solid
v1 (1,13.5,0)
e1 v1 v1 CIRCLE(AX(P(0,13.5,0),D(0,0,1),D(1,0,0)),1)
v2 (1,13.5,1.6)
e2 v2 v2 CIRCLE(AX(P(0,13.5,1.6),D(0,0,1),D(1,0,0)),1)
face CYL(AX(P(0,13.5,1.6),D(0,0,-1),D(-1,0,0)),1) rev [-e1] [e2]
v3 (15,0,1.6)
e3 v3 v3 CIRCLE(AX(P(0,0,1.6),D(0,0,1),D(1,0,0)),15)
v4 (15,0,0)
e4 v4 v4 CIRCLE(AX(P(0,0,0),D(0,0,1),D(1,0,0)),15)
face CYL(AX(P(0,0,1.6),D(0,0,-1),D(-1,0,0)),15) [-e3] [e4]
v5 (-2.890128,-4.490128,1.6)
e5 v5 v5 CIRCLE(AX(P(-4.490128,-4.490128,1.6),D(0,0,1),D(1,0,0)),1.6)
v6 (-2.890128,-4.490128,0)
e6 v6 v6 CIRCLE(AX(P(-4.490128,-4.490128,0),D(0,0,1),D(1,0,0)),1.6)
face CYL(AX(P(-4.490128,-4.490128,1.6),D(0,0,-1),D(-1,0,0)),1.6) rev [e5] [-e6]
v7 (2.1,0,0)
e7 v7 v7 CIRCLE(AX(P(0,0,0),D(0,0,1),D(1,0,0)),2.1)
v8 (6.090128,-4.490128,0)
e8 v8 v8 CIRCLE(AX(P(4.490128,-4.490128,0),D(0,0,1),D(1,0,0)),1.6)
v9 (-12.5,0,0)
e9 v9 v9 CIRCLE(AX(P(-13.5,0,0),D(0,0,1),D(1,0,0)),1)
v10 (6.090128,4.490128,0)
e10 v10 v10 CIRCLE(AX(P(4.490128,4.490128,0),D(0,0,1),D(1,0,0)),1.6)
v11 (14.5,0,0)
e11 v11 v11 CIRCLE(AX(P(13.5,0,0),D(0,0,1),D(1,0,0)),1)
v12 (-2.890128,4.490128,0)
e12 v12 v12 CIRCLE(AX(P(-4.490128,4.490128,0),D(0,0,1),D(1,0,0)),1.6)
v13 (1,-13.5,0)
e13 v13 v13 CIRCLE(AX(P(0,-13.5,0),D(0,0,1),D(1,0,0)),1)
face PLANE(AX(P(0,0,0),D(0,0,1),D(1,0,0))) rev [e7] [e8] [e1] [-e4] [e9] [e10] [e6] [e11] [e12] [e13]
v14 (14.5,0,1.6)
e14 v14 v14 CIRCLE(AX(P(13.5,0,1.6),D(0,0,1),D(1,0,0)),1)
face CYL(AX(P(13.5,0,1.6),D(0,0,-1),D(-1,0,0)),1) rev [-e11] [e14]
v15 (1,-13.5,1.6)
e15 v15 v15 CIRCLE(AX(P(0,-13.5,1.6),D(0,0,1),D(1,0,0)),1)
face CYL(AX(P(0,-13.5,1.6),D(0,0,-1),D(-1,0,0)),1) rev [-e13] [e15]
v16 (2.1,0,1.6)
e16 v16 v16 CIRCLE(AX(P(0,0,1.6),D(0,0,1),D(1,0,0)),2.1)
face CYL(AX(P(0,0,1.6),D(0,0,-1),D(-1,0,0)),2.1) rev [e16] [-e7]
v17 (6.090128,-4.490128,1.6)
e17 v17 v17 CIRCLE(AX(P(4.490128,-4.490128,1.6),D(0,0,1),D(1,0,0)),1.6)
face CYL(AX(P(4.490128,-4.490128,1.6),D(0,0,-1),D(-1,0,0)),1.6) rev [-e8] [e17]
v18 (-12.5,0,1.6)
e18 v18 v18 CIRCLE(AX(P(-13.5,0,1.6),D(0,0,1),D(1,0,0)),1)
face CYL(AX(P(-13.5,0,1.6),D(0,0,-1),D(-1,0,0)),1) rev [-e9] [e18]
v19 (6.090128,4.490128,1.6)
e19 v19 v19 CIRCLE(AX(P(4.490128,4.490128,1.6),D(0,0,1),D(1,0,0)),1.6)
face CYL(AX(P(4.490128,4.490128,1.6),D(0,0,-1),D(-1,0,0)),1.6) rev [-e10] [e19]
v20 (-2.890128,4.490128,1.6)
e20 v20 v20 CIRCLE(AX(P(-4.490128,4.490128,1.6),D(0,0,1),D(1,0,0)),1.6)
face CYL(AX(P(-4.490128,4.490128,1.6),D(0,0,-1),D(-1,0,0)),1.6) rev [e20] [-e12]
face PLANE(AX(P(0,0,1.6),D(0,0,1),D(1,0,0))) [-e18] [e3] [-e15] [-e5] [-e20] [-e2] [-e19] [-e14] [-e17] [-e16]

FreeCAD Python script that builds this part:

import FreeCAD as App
import Part
import Sketcher
Q = App.Units.Quantity

doc = App.newDocument("Part")
body = doc.addObject("PartDesign::Body", "Body")

# Sketch on XY plane
sketch1 = doc.addObject("Sketcher::SketchObject", "Sketch")
body.addObject(sketch1)
sketch1.AttachmentSupport = (doc.XY_Plane, [""])
sketch1.MapMode = "FlatFace"
sketch1.addGeometry([
    Part.Circle(App.Vector(0, 0, 0), App.Vector(0, 0, 1), 15),  # 0
    Part.Circle(App.Vector(-4.5, -4.5, 0), App.Vector(0, 0, 1), 1.6),  # 1
    Part.Circle(App.Vector(0, -13.5, 0), App.Vector(0, 0, 1), 1),  # 2
    Part.Circle(App.Vector(4.5, -4.5, 0), App.Vector(0, 0, 1), 1.6),  # 3
    Part.Circle(App.Vector(-13.5, 0, 0), App.Vector(0, 0, 1), 1),  # 4
    Part.Circle(App.Vector(-4.5, 4.5, 0), App.Vector(0, 0, 1), 1.6),  # 5
    Part.Circle(App.Vector(0, 0, 0), App.Vector(0, 0, 1), 2.1),  # 6
    Part.Circle(App.Vector(4.5, 4.5, 0), App.Vector(0, 0, 1), 1.6),  # 7
    Part.Circle(App.Vector(13.5, 0, 0), App.Vector(0, 0, 1), 1),  # 8
    Part.Circle(App.Vector(0, 13.5, 0), App.Vector(0, 0, 1), 1),  # 9
], False)
sketch1.addConstraint([
    Sketcher.Constraint("Coincident", 0, 3, -1, 1),
    Sketcher.Constraint("Coincident", 6, 3, -1, 1),
    Sketcher.Constraint("Equal", 1, 3),
    Sketcher.Constraint("Equal", 2, 4),
    Sketcher.Constraint("Equal", 3, 5),
    Sketcher.Constraint("Equal", 5, 7),
    Sketcher.Constraint("Equal", 4, 8),
    Sketcher.Constraint("Equal", 8, 9),
    Sketcher.Constraint("Symmetric", 3, 3, 5, 3, -1, 1),
    Sketcher.Constraint("Symmetric", 1, 3, 7, 3, -1, 1),
    Sketcher.Constraint("Symmetric", 4, 3, 8, 3, -1, 1),
    Sketcher.Constraint("Symmetric", 2, 3, 9, 3, -1, 1),
    Sketcher.Constraint("Symmetric", 1, 3, 3, 3, -2),
    Sketcher.Constraint("PointOnObject", 2, 3, -2),
    Sketcher.Constraint("PointOnObject", 4, 3, -1),
    Sketcher.Constraint("Diameter", 0, Q("30 mm")),
    Sketcher.Constraint("Diameter", 2, Q("2 mm")),
    Sketcher.Constraint("Diameter", 1, Q("3.2 mm")),
    Sketcher.Constraint("Diameter", 6, Q("4.2 mm")),
    Sketcher.Constraint("DistanceY", 2, 3, -1, 1, Q("13.5 mm")),
    Sketcher.Constraint("DistanceX", 4, 3, -1, 1, Q("13.5 mm")),
    Sketcher.Constraint("DistanceX", 1, 3, -1, 1, Q("4.490128 mm")),
    Sketcher.Constraint("DistanceY", 1, 3, -1, 1, Q("4.490128 mm")),
])
pad1 = doc.addObject("PartDesign::Pad", "Pad")
body.addObject(pad1)
pad1.Profile = sketch1
pad1.Length = 1.6

doc.recompute()
